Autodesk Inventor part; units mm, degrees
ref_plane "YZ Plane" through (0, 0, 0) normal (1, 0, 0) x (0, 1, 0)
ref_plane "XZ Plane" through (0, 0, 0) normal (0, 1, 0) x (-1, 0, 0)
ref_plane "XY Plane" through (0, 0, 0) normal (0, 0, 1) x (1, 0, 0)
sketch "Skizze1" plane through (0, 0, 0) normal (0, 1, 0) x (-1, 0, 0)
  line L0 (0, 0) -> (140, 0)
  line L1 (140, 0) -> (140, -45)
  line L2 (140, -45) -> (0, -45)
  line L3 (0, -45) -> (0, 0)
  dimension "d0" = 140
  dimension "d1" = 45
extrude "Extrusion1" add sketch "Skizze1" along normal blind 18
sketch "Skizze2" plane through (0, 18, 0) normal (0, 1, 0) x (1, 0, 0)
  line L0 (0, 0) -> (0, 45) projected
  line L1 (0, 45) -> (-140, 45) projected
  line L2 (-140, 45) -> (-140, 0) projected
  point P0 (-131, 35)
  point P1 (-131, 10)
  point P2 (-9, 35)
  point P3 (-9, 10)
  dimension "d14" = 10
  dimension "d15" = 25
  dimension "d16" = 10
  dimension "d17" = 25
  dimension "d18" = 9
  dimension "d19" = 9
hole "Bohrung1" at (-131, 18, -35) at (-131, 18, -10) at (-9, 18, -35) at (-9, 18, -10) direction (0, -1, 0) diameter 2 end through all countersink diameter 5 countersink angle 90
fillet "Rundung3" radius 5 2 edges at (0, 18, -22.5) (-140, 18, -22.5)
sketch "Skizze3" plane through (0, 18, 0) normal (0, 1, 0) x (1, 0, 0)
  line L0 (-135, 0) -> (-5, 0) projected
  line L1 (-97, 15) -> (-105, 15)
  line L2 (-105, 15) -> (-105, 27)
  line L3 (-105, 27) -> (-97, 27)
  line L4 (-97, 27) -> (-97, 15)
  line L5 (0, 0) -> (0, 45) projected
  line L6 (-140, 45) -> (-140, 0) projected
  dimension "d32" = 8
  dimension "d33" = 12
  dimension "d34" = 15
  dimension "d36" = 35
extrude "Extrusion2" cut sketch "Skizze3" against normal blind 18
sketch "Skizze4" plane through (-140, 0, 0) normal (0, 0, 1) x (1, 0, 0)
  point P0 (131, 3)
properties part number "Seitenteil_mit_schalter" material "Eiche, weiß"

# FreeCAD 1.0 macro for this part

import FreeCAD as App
import Part
import Sketcher
Q = App.Units.Quantity


def edges_at(feature, points):
    """Names of the edges that pass closest to the given points."""
    edges = feature.Shape.Edges
    near = lambda p: min(range(len(edges)), key=lambda i: edges[i].distToShape(Part.Vertex(*p))[0])
    return sorted({f"Edge{near(p) + 1}" for p in points})

doc = App.newDocument("Part")
body = doc.addObject("PartDesign::Body", "Body")

# Sketch on XZ plane
sketch1 = doc.addObject("Sketcher::SketchObject", "Sketch")
body.addObject(sketch1)
sketch1.AttachmentSupport = (doc.XZ_Plane, [""])
sketch1.MapMode = "FlatFace"
sketch1.addGeometry([
    Part.LineSegment(App.Vector(-140, 0, 0), App.Vector(0, 0, 0)),
    Part.LineSegment(App.Vector(0, 0, 0), App.Vector(0, -45, 0)),
    Part.LineSegment(App.Vector(0, -45, 0), App.Vector(-140, -45, 0)),
    Part.LineSegment(App.Vector(-140, -45, 0), App.Vector(-140, 0, 0)),
], False)
sketch1.addConstraint([
    Sketcher.Constraint("Coincident", 0, 2, 1, 1),
    Sketcher.Constraint("Coincident", 1, 2, 2, 1),
    Sketcher.Constraint("Coincident", 2, 2, 3, 1),
    Sketcher.Constraint("Coincident", 3, 2, 0, 1),
    Sketcher.Constraint("Horizontal", 0),
    Sketcher.Constraint("Vertical", 1),
    Sketcher.Constraint("Horizontal", 2),
    Sketcher.Constraint("Vertical", 3),
    Sketcher.Constraint("Coincident", 0, 2, -1, 1),
    Sketcher.Constraint("DistanceX", 0, 1, 0, 2, Q("140 mm")),
    Sketcher.Constraint("DistanceY", 1, 2, 1, 1, Q("45 mm")),
])
pad1 = doc.addObject("PartDesign::Pad", "Pad")
body.addObject(pad1)
pad1.Profile = sketch1
pad1.Length = 18
pad1.Reversed = True

# Sketch on XZ plane
sketch2 = doc.addObject("Sketcher::SketchObject", "Sketch001")
body.addObject(sketch2)
sketch2.AttachmentSupport = (doc.XZ_Plane, [""])
sketch2.MapMode = "FlatFace"
sketch2.AttachmentOffset = App.Placement(App.Vector(0, 0, -18), App.Rotation())
sketch2.addGeometry([
    Part.Circle(App.Vector(-131, -35, 0), App.Vector(0, 0, 1), 1),
    Part.Circle(App.Vector(-131, -10, 0), App.Vector(0, 0, 1), 1),
    Part.Circle(App.Vector(-9, -35, 0), App.Vector(0, 0, 1), 1),
    Part.Circle(App.Vector(-9, -10, 0), App.Vector(0, 0, 1), 1),
], False)
sketch2.addConstraint([
    Sketcher.Constraint("Equal", 0, 1),
    Sketcher.Constraint("Equal", 1, 2),
    Sketcher.Constraint("Equal", 2, 3),
    Sketcher.Constraint("Horizontal", 0, 3, 2, 3),
    Sketcher.Constraint("Horizontal", 1, 3, 3, 3),
    Sketcher.Constraint("Vertical", 0, 3, 1, 3),
    Sketcher.Constraint("Vertical", 2, 3, 3, 3),
    Sketcher.Constraint("Diameter", 0, Q("2 mm")),
    Sketcher.Constraint("DistanceX", 0, 3, -1, 1, Q("131 mm")),
    Sketcher.Constraint("DistanceY", 0, 3, -1, 1, Q("35 mm")),
    Sketcher.Constraint("DistanceY", 1, 3, -1, 1, Q("10 mm")),
    Sketcher.Constraint("DistanceX", 2, 3, -1, 1, Q("9 mm")),
])
doc.recompute()
hole = doc.addObject("PartDesign::Hole", "Hole")
body.addObject(hole)
hole.Profile = sketch2
hole.ThreadType = "None"
hole.Diameter = 2
hole.DepthType = "ThroughAll"
hole.HoleCutType = "Countersink"
hole.HoleCutDiameter = 5
hole.HoleCutCountersinkAngle = 90
hole.Reversed = True
doc.recompute()

fillet = doc.addObject("PartDesign::Fillet", "Fillet")
body.addObject(fillet)
fillet.Base = (hole, edges_at(hole, [(0, 18, -22.5), (-140, 18, -22.5)]))
fillet.Radius = 5

# Sketch on XZ plane
sketch3 = doc.addObject("Sketcher::SketchObject", "Sketch002")
body.addObject(sketch3)
sketch3.AttachmentSupport = (doc.XZ_Plane, [""])
sketch3.MapMode = "FlatFace"
sketch3.AttachmentOffset = App.Placement(App.Vector(0, 0, -18), App.Rotation())
sketch3.addGeometry([
    Part.LineSegment(App.Vector(-105, -15, 0), App.Vector(-97, -15, 0)),
    Part.LineSegment(App.Vector(-97, -15, 0), App.Vector(-97, -27, 0)),
    Part.LineSegment(App.Vector(-97, -27, 0), App.Vector(-105, -27, 0)),
    Part.LineSegment(App.Vector(-105, -27, 0), App.Vector(-105, -15, 0)),
], False)
sketch3.addConstraint([
    Sketcher.Constraint("Coincident", 0, 2, 1, 1),
    Sketcher.Constraint("Coincident", 1, 2, 2, 1),
    Sketcher.Constraint("Coincident", 2, 2, 3, 1),
    Sketcher.Constraint("Coincident", 3, 2, 0, 1),
    Sketcher.Constraint("Horizontal", 0),
    Sketcher.Constraint("Vertical", 1),
    Sketcher.Constraint("Horizontal", 2),
    Sketcher.Constraint("Vertical", 3),
    Sketcher.Constraint("DistanceX", 0, 1, 0, 2, Q("8 mm")),
    Sketcher.Constraint("DistanceY", 1, 2, 1, 1, Q("12 mm")),
    Sketcher.Constraint("DistanceY", 0, 2, -1, 1, Q("15 mm")),
    Sketcher.Constraint("DistanceX", 0, 2, -1, 1, Q("97 mm")),
])
pocket1 = doc.addObject("PartDesign::Pocket", "Pocket")
body.addObject(pocket1)
pocket1.Profile = sketch3
pocket1.Length = 18
pocket1.Reversed = True

doc.recompute()
